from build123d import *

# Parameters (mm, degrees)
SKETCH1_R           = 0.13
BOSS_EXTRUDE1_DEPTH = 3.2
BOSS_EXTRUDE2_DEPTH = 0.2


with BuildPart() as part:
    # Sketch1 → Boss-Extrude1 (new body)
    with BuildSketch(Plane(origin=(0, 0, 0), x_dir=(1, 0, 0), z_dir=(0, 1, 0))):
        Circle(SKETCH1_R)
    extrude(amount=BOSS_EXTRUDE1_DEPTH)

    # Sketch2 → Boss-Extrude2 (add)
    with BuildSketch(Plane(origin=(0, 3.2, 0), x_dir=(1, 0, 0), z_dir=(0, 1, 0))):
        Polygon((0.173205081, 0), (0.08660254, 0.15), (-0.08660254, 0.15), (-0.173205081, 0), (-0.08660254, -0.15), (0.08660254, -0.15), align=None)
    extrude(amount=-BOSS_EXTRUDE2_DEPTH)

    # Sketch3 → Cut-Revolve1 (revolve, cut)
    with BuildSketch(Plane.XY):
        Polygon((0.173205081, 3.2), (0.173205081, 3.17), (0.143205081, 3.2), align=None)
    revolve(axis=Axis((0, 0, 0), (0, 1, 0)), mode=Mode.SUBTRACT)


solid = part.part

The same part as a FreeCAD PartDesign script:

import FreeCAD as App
import Part
import Sketcher
from FreeCAD import Vector
Q = App.Units.Quantity

doc = App.newDocument("Part")
body = doc.addObject("PartDesign::Body", "Body")

# Sketch on XZ plane
sketch1 = doc.addObject("Sketcher::SketchObject", "Sketch")
body.addObject(sketch1)
sketch1.AttachmentSupport = (doc.XZ_Plane, [""])
sketch1.MapMode = "FlatFace"
sketch1.addGeometry(Part.Circle(Vector(0, 0, 0), Vector(0, 0, 1), 0.13), False)
sketch1.addConstraint(Sketcher.Constraint("Coincident", 0, 3, -1, 1))
sketch1.addConstraint(Sketcher.Constraint("Diameter", 0, Q("0.26 mm")))
pad1 = doc.addObject("PartDesign::Pad", "Pad")
body.addObject(pad1)
pad1.Profile = sketch1
pad1.Length = 3.2
pad1.Reversed = True

# Sketch on XZ plane
sketch2 = doc.addObject("Sketcher::SketchObject", "Sketch001")
body.addObject(sketch2)
sketch2.AttachmentSupport = (doc.XZ_Plane, [""])
sketch2.MapMode = "FlatFace"
sketch2.AttachmentOffset = App.Placement(Vector(0, 0, -3.2), App.Rotation())
sketch2.addGeometry(Part.LineSegment(Vector(0.173205, 0, 0), Vector(0.086603, -0.15, 0)), False)
sketch2.addGeometry(Part.LineSegment(Vector(0.086603, -0.15, 0), Vector(-0.086603, -0.15, 0)), False)
sketch2.addGeometry(Part.LineSegment(Vector(-0.086603, -0.15, 0), Vector(-0.173205, 0, 0)), False)
sketch2.addGeometry(Part.LineSegment(Vector(-0.173205, 0, 0), Vector(-0.086603, 0.15, 0)), False)
sketch2.addGeometry(Part.LineSegment(Vector(-0.086603, 0.15, 0), Vector(0.086603, 0.15, 0)), False)
sketch2.addGeometry(Part.LineSegment(Vector(0.086603, 0.15, 0), Vector(0.173205, 0, 0)), False)
sketch2.addConstraint(Sketcher.Constraint("Coincident", 0, 2, 1, 1))
sketch2.addConstraint(Sketcher.Constraint("Coincident", 1, 2, 2, 1))
sketch2.addConstraint(Sketcher.Constraint("Coincident", 2, 2, 3, 1))
sketch2.addConstraint(Sketcher.Constraint("Coincident", 3, 2, 4, 1))
sketch2.addConstraint(Sketcher.Constraint("Coincident", 4, 2, 5, 1))
sketch2.addConstraint(Sketcher.Constraint("Coincident", 5, 2, 0, 1))
sketch2.addConstraint(Sketcher.Constraint("Horizontal", 1))
sketch2.addConstraint(Sketcher.Constraint("Horizontal", 4))
sketch2.addConstraint(Sketcher.Constraint("Symmetric", 0, 2, 3, 2, -1, 1))
sketch2.addConstraint(Sketcher.Constraint("Symmetric", 2, 2, 5, 2, -1, 1))
sketch2.addConstraint(Sketcher.Constraint("PointOnObject", 2, 2, -1))
sketch2.addConstraint(Sketcher.Constraint("Parallel", 2, 5))
sketch2.addConstraint(Sketcher.Constraint("Vertical", 1, 2, 3, 2))
sketch2.addConstraint(Sketcher.Constraint("Angle", 0, Q("-120 deg")))
sketch2.addConstraint(Sketcher.Constraint("DistanceY", 1, 2, 3, 2, Q("0.3 mm")))
sketch2.addConstraint(Sketcher.Constraint("DistanceX", 1, 2, 1, 1, Q("0.173205 mm")))
pad2 = doc.addObject("PartDesign::Pad", "Pad001")
body.addObject(pad2)
pad2.Profile = sketch2
pad2.Length = 0.2

# Sketch on XY plane
sketch3 = doc.addObject("Sketcher::SketchObject", "Sketch002")
body.addObject(sketch3)
sketch3.AttachmentSupport = (doc.XY_Plane, [""])
sketch3.MapMode = "FlatFace"
sketch3.addGeometry(Part.LineSegment(Vector(0.173205, 3.17, 0), Vector(0.173205, 3.2, 0)), False)
sketch3.addGeometry(Part.LineSegment(Vector(0.173205, 3.2, 0), Vector(0.143205, 3.2, 0)), False)
sketch3.addGeometry(Part.LineSegment(Vector(0.143205, 3.2, 0), Vector(0.173205, 3.17, 0)), False)
sketch3.addConstraint(Sketcher.Constraint("Coincident", 0, 2, 1, 1))
sketch3.addConstraint(Sketcher.Constraint("Coincident", 1, 2, 2, 1))
sketch3.addConstraint(Sketcher.Constraint("Coincident", 2, 2, 0, 1))
sketch3.addConstraint(Sketcher.Constraint("Vertical", 0))
sketch3.addConstraint(Sketcher.Constraint("Horizontal", 1))
sketch3.addConstraint(Sketcher.Constraint("Equal", 1, 0))
sketch3.addConstraint(Sketcher.Constraint("DistanceX", 1, 2, 1, 1, Q("0.03 mm")))
sketch3.addConstraint(Sketcher.Constraint("DistanceY", -1, 1, 0, 2, Q("3.2 mm")))
sketch3.addConstraint(Sketcher.Constraint("DistanceX", -1, 1, 0, 2, Q("0.173205 mm")))
groove = doc.addObject("PartDesign::Groove", "Groove")
body.addObject(groove)
groove.Profile = sketch3
groove.ReferenceAxis = (sketch3, ["V_Axis"])
groove.Angle = 360

doc.recompute()
